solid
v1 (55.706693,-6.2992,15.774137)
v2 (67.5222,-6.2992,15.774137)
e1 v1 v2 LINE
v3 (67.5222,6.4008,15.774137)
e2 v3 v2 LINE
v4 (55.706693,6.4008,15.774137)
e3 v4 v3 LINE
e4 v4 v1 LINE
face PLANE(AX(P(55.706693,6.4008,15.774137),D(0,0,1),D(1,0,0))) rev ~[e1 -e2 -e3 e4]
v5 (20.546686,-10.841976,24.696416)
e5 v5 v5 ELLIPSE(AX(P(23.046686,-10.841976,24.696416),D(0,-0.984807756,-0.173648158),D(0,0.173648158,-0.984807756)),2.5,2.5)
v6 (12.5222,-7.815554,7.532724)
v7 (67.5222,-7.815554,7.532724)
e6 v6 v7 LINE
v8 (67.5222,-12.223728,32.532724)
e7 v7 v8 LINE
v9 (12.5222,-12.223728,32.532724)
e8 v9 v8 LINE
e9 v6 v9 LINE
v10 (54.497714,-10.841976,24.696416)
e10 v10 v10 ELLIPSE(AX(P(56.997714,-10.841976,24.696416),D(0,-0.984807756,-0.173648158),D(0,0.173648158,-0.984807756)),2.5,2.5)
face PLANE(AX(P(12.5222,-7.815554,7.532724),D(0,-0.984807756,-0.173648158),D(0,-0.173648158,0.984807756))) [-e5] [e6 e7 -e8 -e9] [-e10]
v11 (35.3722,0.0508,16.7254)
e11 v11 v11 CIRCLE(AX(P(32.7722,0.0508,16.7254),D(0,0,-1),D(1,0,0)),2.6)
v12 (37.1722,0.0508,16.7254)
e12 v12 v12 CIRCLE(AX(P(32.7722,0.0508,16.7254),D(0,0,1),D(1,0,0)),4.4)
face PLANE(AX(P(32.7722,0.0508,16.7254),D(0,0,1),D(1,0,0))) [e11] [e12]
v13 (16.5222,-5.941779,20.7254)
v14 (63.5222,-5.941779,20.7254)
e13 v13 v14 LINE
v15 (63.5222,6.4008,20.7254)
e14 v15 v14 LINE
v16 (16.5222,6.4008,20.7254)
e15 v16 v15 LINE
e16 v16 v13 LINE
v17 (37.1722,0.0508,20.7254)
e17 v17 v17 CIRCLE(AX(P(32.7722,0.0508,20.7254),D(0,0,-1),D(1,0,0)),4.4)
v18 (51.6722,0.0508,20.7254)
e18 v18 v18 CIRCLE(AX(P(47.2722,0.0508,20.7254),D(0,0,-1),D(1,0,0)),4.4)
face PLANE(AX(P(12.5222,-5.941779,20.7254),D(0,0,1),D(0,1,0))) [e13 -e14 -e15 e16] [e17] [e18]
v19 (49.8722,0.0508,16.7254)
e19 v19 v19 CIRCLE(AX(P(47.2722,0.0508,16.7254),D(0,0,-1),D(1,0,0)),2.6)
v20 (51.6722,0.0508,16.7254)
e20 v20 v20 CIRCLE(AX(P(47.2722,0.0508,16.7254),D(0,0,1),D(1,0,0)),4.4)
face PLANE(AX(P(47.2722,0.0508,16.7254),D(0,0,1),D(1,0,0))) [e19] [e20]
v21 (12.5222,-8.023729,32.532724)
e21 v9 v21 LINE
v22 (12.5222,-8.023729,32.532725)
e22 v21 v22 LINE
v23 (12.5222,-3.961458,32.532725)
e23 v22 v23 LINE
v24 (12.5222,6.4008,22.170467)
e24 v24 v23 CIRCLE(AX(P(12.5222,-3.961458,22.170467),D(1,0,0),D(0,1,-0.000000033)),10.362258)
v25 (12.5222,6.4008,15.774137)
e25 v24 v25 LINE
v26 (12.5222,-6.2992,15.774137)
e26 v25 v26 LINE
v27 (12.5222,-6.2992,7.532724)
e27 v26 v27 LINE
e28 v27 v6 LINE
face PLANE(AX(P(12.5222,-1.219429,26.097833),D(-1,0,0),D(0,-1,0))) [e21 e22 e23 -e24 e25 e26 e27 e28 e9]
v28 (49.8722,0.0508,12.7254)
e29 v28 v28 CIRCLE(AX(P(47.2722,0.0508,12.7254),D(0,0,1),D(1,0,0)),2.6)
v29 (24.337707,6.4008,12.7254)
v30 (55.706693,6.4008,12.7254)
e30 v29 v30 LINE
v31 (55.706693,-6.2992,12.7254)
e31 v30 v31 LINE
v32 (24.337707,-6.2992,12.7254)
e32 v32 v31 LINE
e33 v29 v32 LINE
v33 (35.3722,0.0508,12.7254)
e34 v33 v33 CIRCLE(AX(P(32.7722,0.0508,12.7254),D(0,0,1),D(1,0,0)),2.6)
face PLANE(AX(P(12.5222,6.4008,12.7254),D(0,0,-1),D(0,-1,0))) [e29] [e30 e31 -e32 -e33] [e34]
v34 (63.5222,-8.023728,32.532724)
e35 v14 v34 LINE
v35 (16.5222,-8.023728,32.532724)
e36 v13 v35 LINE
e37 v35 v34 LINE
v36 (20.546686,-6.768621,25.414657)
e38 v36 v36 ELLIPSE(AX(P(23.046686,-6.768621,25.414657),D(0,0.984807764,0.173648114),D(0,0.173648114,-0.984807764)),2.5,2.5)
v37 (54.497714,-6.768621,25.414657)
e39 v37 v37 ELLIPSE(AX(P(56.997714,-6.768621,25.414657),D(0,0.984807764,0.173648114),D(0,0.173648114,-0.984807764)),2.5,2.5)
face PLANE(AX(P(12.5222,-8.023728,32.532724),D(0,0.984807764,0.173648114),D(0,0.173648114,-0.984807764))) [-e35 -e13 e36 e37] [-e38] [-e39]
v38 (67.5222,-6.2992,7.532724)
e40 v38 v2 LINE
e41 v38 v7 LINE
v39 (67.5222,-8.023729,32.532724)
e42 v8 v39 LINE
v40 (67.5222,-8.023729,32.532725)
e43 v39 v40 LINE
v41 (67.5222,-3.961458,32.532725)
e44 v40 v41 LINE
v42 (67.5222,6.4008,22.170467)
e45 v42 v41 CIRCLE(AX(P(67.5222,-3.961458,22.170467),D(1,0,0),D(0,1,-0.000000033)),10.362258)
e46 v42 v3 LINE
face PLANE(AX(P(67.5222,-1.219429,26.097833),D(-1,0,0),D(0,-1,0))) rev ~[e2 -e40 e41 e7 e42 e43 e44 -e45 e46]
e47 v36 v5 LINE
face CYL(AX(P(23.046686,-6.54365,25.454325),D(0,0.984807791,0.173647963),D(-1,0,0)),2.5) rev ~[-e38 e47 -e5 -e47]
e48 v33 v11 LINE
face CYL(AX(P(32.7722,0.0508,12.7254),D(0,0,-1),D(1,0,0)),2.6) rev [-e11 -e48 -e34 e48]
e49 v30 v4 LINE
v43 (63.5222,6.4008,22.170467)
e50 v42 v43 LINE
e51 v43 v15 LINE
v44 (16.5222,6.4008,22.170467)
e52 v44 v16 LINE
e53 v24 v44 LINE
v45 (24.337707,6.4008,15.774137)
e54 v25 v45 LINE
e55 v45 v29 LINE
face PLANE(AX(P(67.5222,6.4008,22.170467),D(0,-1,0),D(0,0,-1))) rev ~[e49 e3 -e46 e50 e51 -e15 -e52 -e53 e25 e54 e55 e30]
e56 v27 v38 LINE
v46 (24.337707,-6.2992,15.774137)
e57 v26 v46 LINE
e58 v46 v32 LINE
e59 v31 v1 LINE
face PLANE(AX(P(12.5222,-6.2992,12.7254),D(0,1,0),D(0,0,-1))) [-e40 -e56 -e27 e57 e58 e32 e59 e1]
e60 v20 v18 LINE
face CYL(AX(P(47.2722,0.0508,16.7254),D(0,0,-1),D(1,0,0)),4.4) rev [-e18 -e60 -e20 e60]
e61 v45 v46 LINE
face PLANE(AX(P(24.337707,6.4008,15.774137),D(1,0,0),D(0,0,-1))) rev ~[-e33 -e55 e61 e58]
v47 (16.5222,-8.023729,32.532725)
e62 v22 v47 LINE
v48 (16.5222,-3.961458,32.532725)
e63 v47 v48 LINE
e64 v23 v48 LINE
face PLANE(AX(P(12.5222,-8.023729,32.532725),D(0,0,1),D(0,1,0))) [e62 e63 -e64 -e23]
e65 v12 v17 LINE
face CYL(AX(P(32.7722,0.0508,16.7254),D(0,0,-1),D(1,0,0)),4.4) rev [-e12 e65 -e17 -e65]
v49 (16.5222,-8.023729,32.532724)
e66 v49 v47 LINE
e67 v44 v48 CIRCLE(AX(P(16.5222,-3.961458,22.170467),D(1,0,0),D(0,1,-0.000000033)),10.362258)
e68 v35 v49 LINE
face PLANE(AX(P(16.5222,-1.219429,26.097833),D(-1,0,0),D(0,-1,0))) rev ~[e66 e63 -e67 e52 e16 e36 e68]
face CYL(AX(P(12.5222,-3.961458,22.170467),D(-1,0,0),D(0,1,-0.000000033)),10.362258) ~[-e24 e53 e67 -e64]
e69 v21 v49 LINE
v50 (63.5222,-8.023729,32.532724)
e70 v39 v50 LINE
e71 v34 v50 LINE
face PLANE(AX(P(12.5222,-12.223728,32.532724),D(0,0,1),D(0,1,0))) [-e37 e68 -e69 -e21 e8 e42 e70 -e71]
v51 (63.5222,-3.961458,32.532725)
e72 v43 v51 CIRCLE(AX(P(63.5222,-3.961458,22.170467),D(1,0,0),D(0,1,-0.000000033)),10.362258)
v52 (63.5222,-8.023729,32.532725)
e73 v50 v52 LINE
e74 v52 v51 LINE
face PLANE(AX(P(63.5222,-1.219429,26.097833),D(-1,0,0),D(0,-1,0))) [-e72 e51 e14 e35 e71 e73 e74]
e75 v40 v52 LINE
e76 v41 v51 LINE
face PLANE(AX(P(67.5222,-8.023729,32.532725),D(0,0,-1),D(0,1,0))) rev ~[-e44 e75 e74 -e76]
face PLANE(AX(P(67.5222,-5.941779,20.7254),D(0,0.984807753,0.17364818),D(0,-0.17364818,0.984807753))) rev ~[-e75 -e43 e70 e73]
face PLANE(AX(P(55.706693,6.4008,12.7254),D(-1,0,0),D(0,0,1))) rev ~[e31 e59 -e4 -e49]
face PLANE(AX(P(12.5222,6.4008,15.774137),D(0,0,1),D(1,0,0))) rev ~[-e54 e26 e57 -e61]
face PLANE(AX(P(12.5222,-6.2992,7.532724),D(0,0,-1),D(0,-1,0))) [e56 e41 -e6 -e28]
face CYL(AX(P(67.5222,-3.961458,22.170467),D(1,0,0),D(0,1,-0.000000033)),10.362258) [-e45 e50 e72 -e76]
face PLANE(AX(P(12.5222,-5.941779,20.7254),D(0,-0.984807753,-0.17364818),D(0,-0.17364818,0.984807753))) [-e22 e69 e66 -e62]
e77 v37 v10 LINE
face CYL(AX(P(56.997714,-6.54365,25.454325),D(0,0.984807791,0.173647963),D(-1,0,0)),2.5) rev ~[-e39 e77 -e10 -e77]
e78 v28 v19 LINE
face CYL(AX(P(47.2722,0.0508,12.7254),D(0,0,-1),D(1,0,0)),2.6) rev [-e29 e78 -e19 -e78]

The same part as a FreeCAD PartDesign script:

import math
import FreeCAD as App
import Part
import Sketcher
Q = App.Units.Quantity

doc = App.newDocument("Part")
body = doc.addObject("PartDesign::Body", "Body")

sketch1 = doc.addObject("Sketcher::SketchObject", "Sketch")
body.addObject(sketch1)
sketch1.AttachmentSupport = (doc.YZ_Plane, [""])
sketch1.MapMode = "FlatFace"
sketch1.addGeometry([
    Part.LineSegment(App.Vector(-5.9, 19.8, 0), App.Vector(-1.5, -5.2, 0)),
    Part.LineSegment(App.Vector(-1.5, -5.2, 0), App.Vector(0, -5.2, 0)),
    Part.LineSegment(App.Vector(0, -5.2, 0), App.Vector(0, 0, 0)),
    Part.LineSegment(App.Vector(0, 0, 0), App.Vector(12.7, 0, 0)),
    Part.LineSegment(App.Vector(12.7, 0, 0), App.Vector(12.7, 8, 0)),
    Part.LineSegment(App.Vector(12.7, 8, 0), App.Vector(0.4, 8, 0)),
    Part.LineSegment(App.Vector(0.4, 8, 0), App.Vector(-1.7, 19.8, 0)),
    Part.LineSegment(App.Vector(-1.7, 19.8, 0), App.Vector(-5.9, 19.8, 0)),
], False)
sketch1.addConstraint([
    Sketcher.Constraint("Coincident", 0, 2, 1, 1),
    Sketcher.Constraint("Coincident", 1, 2, 2, 1),
    Sketcher.Constraint("Coincident", 2, 2, 3, 1),
    Sketcher.Constraint("Coincident", 3, 2, 4, 1),
    Sketcher.Constraint("Coincident", 4, 2, 5, 1),
    Sketcher.Constraint("Coincident", 5, 2, 6, 1),
    Sketcher.Constraint("Coincident", 6, 2, 7, 1),
    Sketcher.Constraint("Coincident", 7, 2, 0, 1),
    Sketcher.Constraint("Horizontal", 1),
    Sketcher.Constraint("Vertical", 2),
    Sketcher.Constraint("Horizontal", 3),
    Sketcher.Constraint("Vertical", 4),
    Sketcher.Constraint("Horizontal", 5),
    Sketcher.Constraint("Horizontal", 7),
    Sketcher.Constraint("Coincident", 2, 2, -1, 1),
    Sketcher.Constraint("Parallel", 0, 6),
    Sketcher.Constraint("DistanceY", 4, 1, 4, 2, Q("8 mm")),
    Sketcher.Constraint("Angle", 0, Q("-80.000001 deg")),
    Sketcher.Constraint("DistanceX", 3, 1, 3, 2, Q("12.7 mm")),
    Sketcher.Constraint("DistanceX", 7, 2, 7, 1, Q("4.2 mm")),
    Sketcher.Constraint("DistanceY", 0, 2, 6, 2, Q("25 mm")),
    Sketcher.Constraint("DistanceX", 5, 2, 5, 1, Q("12.342579 mm")),
    Sketcher.Constraint("Distance", 6, Q("11.989471 mm")),
])
pad1 = doc.addObject("PartDesign::Pad", "Pad")
body.addObject(pad1)
pad1.Profile = sketch1
pad1.Length = 55

sketch2 = doc.addObject("Sketcher::SketchObject", "Sketch001")
body.addObject(sketch2)
sketch2.AttachmentSupport = (doc.XY_Plane, [""])
sketch2.MapMode = "FlatFace"
sketch2.addGeometry([
    Part.Circle(App.Vector(20.2, 6.3, 0), App.Vector(0, 0, 1), 2.6),
    Part.Circle(App.Vector(34.8, 6.3, 0), App.Vector(0, 0, 1), 2.6),
], False)
sketch2.addConstraint([
    Sketcher.Constraint("Equal", 0, 1),
    Sketcher.Constraint("Horizontal", 0, 3, 1, 3),
    Sketcher.Constraint("Diameter", 0, Q("5.2 mm")),
    Sketcher.Constraint("DistanceX", 0, 3, 1, 3, Q("14.5 mm")),
    Sketcher.Constraint("DistanceX", -1, 1, 0, 3, Q("20.25 mm")),
    Sketcher.Constraint("DistanceY", -1, 1, 0, 3, Q("6.35 mm")),
])
pocket1 = doc.addObject("PartDesign::Pocket", "Pocket")
body.addObject(pocket1)
pocket1.Profile = sketch2
pocket1.Length = 10
pocket1.Reversed = True

sketch3 = doc.addObject("Sketcher::SketchObject", "Sketch002")
body.addObject(sketch3)
sketch3.Placement = App.Placement(App.Vector(0, 2, 0), App.Rotation(App.Vector(-1, 0, 0), App.Vector(0, -0.173647963, 0.984807791), App.Vector(0, 0.984807791, 0.173647963), "ZXY"))
sketch3.addGeometry([
    Part.Circle(App.Vector(-44.5, 12.9, 0), App.Vector(0, 0, 1), 2.5),
    Part.Circle(App.Vector(-10.5, 12.9, 0), App.Vector(0, 0, 1), 2.5),
], False)
sketch3.addConstraint([
    Sketcher.Constraint("Equal", 0, 1),
    Sketcher.Constraint("Horizontal", 0, 3, 1, 3),
    Sketcher.Constraint("Diameter", 0, Q("5 mm")),
    Sketcher.Constraint("DistanceY", -1, 1, 0, 3, Q("12.925289 mm")),
    Sketcher.Constraint("DistanceX", 0, 3, -1, 1, Q("44.475514 mm")),
    Sketcher.Constraint("DistanceX", 1, 3, -1, 1, Q("10.524486 mm")),
])
pocket2 = doc.addObject("PartDesign::Pocket", "Pocket001")
body.addObject(pocket2)
pocket2.Profile = sketch3
pocket2.Length = 5

sketch4 = doc.addObject("Sketcher::SketchObject", "Sketch003")
body.addObject(sketch4)
sketch4.AttachmentSupport = (doc.XY_Plane, [""])
sketch4.MapMode = "FlatFace"
sketch4.AttachmentOffset = App.Placement(App.Vector(0, 0, 4), App.Rotation())
sketch4.addGeometry([
    Part.Circle(App.Vector(20.2, 6.3, 0), App.Vector(0, 0, 1), 4.4),
    Part.Circle(App.Vector(34.8, 6.3, 0), App.Vector(0, 0, 1), 4.4),
], False)
sketch4.addConstraint([
    Sketcher.Constraint("Equal", 0, 1),
    Sketcher.Constraint("Horizontal", 0, 3, 1, 3),
    Sketcher.Constraint("Diameter", 0, Q("8.8 mm")),
    Sketcher.Constraint("DistanceX", 0, 3, 1, 3, Q("14.5 mm")),
    Sketcher.Constraint("DistanceX", -1, 1, 0, 3, Q("20.25 mm")),
    Sketcher.Constraint("DistanceY", -1, 1, 0, 3, Q("6.35 mm")),
])
pocket3 = doc.addObject("PartDesign::Pocket", "Pocket002")
body.addObject(pocket3)
pocket3.Profile = sketch4
pocket3.Length = 5
pocket3.Reversed = True

sketch5 = doc.addObject("Sketcher::SketchObject", "Sketch004")
body.addObject(sketch5)
sketch5.AttachmentSupport = (doc.YZ_Plane, [""])
sketch5.MapMode = "FlatFace"
sketch5.addGeometry([
    Part.LineSegment(App.Vector(0.4, 8, 0), App.Vector(12.7, 8, 0)),
    Part.LineSegment(App.Vector(12.7, 8, 0), App.Vector(12.7, 9.4, 0)),
    Part.ArcOfCircle(Part.Circle(App.Vector(2.3, 9.4, 0), App.Vector(0, 0, 1), 10.4), math.radians(0), math.radians(90)),
    Part.LineSegment(App.Vector(2.3, 19.8, 0), App.Vector(-1.7, 19.8, 0)),
    Part.LineSegment(App.Vector(-1.7, 19.8, 0), App.Vector(0.4, 8, 0)),
], False)
sketch5.addConstraint([
    Sketcher.Constraint("Coincident", 0, 2, 1, 1),
    Sketcher.Constraint("Tangent", 1, 2, 2, 1),
    Sketcher.Constraint("Tangent", 2, 2, 3, 1),
    Sketcher.Constraint("Coincident", 3, 2, 4, 1),
    Sketcher.Constraint("Coincident", 4, 2, 0, 1),
    Sketcher.Constraint("Horizontal", 0),
    Sketcher.Constraint("Vertical", 1),
    Sketcher.Constraint("Horizontal", 3),
    Sketcher.Constraint("Angle", 4, Q("-80 deg")),
    Sketcher.Constraint("DistanceY", -1, 1, 0, 2, Q("8 mm")),
    Sketcher.Constraint("DistanceX", -1, 1, 0, 2, Q("12.7 mm")),
    Sketcher.Constraint("Radius", 2, Q("10.362258 mm")),
    Sketcher.Constraint("DistanceX", 0, 1, 0, 2, Q("12.342579 mm")),
    Sketcher.Constraint("DistanceX", 3, 2, 3, 1, Q("4.062271 mm")),
])
pad2 = doc.addObject("PartDesign::Pad", "Pad001")
body.addObject(pad2)
pad2.Profile = sketch5
pad2.Length = 4

sketch6 = doc.addObject("Sketcher::SketchObject", "Sketch005")
body.addObject(sketch6)
sketch6.AttachmentSupport = (doc.YZ_Plane, [""])
sketch6.MapMode = "FlatFace"
sketch6.AttachmentOffset = App.Placement(App.Vector(0, 0, 55), App.Rotation())
sketch6.addGeometry([
    Part.LineSegment(App.Vector(0.4, 8, 0), App.Vector(12.7, 8, 0)),
    Part.LineSegment(App.Vector(12.7, 8, 0), App.Vector(12.7, 9.4, 0)),
    Part.ArcOfCircle(Part.Circle(App.Vector(2.3, 9.4, 0), App.Vector(0, 0, 1), 10.4), math.radians(0), math.radians(90)),
    Part.LineSegment(App.Vector(2.3, 19.8, 0), App.Vector(-1.7, 19.8, 0)),
    Part.LineSegment(App.Vector(-1.7, 19.8, 0), App.Vector(0.4, 8, 0)),
], False)
sketch6.addConstraint([
    Sketcher.Constraint("Coincident", 0, 2, 1, 1),
    Sketcher.Constraint("Tangent", 1, 2, 2, 1),
    Sketcher.Constraint("Tangent", 2, 2, 3, 1),
    Sketcher.Constraint("Coincident", 3, 2, 4, 1),
    Sketcher.Constraint("Coincident", 4, 2, 0, 1),
    Sketcher.Constraint("Horizontal", 0),
    Sketcher.Constraint("Vertical", 1),
    Sketcher.Constraint("Horizontal", 3),
    Sketcher.Constraint("Angle", 4, Q("-80 deg")),
    Sketcher.Constraint("DistanceY", -1, 1, 0, 2, Q("8 mm")),
    Sketcher.Constraint("DistanceX", -1, 1, 0, 2, Q("12.7 mm")),
    Sketcher.Constraint("Radius", 2, Q("10.362258 mm")),
    Sketcher.Constraint("DistanceX", 0, 1, 0, 2, Q("12.342579 mm")),
    Sketcher.Constraint("DistanceX", 3, 2, 3, 1, Q("4.062271 mm")),
])
pad3 = doc.addObject("PartDesign::Pad", "Pad002")
body.addObject(pad3)
pad3.Profile = sketch6
pad3.Length = 4
pad3.Reversed = True

sketch7 = doc.addObject("Sketcher::SketchObject", "Sketch006")
body.addObject(sketch7)
sketch7.AttachmentSupport = (doc.XZ_Plane, [""])
sketch7.MapMode = "FlatFace"
sketch7.AttachmentOffset = App.Placement(App.Vector(0, 0, -12.7), App.Rotation())
sketch7.addGeometry([
    Part.LineSegment(App.Vector(43.2, 0, 0), App.Vector(43.2, 3, 0)),
    Part.LineSegment(App.Vector(43.2, 3, 0), App.Vector(55, 3, 0)),
    Part.LineSegment(App.Vector(55, 3, 0), App.Vector(55, -3, 0)),
    Part.LineSegment(App.Vector(55, -3, 0), App.Vector(0, -3, 0)),
    Part.LineSegment(App.Vector(0, -3, 0), App.Vector(0, 3, 0)),
    Part.LineSegment(App.Vector(0, 3, 0), App.Vector(11.8, 3, 0)),
    Part.LineSegment(App.Vector(11.8, 3, 0), App.Vector(11.8, 0, 0)),
    Part.LineSegment(App.Vector(11.8, 0, 0), App.Vector(43.2, 0, 0)),
], False)
sketch7.addConstraint([
    Sketcher.Constraint("Coincident", 0, 2, 1, 1),
    Sketcher.Constraint("Coincident", 1, 2, 2, 1),
    Sketcher.Constraint("Coincident", 2, 2, 3, 1),
    Sketcher.Constraint("Coincident", 3, 2, 4, 1),
    Sketcher.Constraint("Coincident", 4, 2, 5, 1),
    Sketcher.Constraint("Coincident", 5, 2, 6, 1),
    Sketcher.Constraint("Coincident", 6, 2, 7, 1),
    Sketcher.Constraint("Coincident", 7, 2, 0, 1),
    Sketcher.Constraint("Vertical", 0),
    Sketcher.Constraint("Horizontal", 1),
    Sketcher.Constraint("Vertical", 2),
    Sketcher.Constraint("Horizontal", 3),
    Sketcher.Constraint("Vertical", 4),
    Sketcher.Constraint("Horizontal", 5),
    Sketcher.Constraint("Vertical", 6),
    Sketcher.Constraint("Horizontal", 7),
    Sketcher.Constraint("PointOnObject", 3, 2, -2),
    Sketcher.Constraint("PointOnObject", 6, 2, -1),
    Sketcher.Constraint("Horizontal", 1, 2, 4, 2),
    Sketcher.Constraint("Equal", 1, 5),
    Sketcher.Constraint("DistanceX", 3, 2, 3, 1, Q("55 mm")),
    Sketcher.Constraint("DistanceX", 1, 1, 1, 2, Q("11.815507 mm")),
    Sketcher.Constraint("DistanceY", 0, 1, 0, 2, Q("3.048737 mm")),
    Sketcher.Constraint("DistanceY", 2, 2, 2, 1, Q("6.095772 mm")),
])
pocket4 = doc.addObject("PartDesign::Pocket", "Pocket003")
body.addObject(pocket4)
pocket4.Profile = sketch7
pocket4.Length = 12.7
pocket4.Reversed = True
body2 = doc.addObject("PartDesign::Body", "Body001")
doc.recompute()

body.Placement = App.Placement(App.Vector(12.5222, -6.2992, 12.7254), App.Rotation(App.Vector(0, 0, 1), 0))
boolean = doc.addObject("PartDesign::Boolean", "Boolean")
body2.addObject(boolean)
boolean.Type = "Fuse"
boolean.addObjects([body])

doc.recompute()
